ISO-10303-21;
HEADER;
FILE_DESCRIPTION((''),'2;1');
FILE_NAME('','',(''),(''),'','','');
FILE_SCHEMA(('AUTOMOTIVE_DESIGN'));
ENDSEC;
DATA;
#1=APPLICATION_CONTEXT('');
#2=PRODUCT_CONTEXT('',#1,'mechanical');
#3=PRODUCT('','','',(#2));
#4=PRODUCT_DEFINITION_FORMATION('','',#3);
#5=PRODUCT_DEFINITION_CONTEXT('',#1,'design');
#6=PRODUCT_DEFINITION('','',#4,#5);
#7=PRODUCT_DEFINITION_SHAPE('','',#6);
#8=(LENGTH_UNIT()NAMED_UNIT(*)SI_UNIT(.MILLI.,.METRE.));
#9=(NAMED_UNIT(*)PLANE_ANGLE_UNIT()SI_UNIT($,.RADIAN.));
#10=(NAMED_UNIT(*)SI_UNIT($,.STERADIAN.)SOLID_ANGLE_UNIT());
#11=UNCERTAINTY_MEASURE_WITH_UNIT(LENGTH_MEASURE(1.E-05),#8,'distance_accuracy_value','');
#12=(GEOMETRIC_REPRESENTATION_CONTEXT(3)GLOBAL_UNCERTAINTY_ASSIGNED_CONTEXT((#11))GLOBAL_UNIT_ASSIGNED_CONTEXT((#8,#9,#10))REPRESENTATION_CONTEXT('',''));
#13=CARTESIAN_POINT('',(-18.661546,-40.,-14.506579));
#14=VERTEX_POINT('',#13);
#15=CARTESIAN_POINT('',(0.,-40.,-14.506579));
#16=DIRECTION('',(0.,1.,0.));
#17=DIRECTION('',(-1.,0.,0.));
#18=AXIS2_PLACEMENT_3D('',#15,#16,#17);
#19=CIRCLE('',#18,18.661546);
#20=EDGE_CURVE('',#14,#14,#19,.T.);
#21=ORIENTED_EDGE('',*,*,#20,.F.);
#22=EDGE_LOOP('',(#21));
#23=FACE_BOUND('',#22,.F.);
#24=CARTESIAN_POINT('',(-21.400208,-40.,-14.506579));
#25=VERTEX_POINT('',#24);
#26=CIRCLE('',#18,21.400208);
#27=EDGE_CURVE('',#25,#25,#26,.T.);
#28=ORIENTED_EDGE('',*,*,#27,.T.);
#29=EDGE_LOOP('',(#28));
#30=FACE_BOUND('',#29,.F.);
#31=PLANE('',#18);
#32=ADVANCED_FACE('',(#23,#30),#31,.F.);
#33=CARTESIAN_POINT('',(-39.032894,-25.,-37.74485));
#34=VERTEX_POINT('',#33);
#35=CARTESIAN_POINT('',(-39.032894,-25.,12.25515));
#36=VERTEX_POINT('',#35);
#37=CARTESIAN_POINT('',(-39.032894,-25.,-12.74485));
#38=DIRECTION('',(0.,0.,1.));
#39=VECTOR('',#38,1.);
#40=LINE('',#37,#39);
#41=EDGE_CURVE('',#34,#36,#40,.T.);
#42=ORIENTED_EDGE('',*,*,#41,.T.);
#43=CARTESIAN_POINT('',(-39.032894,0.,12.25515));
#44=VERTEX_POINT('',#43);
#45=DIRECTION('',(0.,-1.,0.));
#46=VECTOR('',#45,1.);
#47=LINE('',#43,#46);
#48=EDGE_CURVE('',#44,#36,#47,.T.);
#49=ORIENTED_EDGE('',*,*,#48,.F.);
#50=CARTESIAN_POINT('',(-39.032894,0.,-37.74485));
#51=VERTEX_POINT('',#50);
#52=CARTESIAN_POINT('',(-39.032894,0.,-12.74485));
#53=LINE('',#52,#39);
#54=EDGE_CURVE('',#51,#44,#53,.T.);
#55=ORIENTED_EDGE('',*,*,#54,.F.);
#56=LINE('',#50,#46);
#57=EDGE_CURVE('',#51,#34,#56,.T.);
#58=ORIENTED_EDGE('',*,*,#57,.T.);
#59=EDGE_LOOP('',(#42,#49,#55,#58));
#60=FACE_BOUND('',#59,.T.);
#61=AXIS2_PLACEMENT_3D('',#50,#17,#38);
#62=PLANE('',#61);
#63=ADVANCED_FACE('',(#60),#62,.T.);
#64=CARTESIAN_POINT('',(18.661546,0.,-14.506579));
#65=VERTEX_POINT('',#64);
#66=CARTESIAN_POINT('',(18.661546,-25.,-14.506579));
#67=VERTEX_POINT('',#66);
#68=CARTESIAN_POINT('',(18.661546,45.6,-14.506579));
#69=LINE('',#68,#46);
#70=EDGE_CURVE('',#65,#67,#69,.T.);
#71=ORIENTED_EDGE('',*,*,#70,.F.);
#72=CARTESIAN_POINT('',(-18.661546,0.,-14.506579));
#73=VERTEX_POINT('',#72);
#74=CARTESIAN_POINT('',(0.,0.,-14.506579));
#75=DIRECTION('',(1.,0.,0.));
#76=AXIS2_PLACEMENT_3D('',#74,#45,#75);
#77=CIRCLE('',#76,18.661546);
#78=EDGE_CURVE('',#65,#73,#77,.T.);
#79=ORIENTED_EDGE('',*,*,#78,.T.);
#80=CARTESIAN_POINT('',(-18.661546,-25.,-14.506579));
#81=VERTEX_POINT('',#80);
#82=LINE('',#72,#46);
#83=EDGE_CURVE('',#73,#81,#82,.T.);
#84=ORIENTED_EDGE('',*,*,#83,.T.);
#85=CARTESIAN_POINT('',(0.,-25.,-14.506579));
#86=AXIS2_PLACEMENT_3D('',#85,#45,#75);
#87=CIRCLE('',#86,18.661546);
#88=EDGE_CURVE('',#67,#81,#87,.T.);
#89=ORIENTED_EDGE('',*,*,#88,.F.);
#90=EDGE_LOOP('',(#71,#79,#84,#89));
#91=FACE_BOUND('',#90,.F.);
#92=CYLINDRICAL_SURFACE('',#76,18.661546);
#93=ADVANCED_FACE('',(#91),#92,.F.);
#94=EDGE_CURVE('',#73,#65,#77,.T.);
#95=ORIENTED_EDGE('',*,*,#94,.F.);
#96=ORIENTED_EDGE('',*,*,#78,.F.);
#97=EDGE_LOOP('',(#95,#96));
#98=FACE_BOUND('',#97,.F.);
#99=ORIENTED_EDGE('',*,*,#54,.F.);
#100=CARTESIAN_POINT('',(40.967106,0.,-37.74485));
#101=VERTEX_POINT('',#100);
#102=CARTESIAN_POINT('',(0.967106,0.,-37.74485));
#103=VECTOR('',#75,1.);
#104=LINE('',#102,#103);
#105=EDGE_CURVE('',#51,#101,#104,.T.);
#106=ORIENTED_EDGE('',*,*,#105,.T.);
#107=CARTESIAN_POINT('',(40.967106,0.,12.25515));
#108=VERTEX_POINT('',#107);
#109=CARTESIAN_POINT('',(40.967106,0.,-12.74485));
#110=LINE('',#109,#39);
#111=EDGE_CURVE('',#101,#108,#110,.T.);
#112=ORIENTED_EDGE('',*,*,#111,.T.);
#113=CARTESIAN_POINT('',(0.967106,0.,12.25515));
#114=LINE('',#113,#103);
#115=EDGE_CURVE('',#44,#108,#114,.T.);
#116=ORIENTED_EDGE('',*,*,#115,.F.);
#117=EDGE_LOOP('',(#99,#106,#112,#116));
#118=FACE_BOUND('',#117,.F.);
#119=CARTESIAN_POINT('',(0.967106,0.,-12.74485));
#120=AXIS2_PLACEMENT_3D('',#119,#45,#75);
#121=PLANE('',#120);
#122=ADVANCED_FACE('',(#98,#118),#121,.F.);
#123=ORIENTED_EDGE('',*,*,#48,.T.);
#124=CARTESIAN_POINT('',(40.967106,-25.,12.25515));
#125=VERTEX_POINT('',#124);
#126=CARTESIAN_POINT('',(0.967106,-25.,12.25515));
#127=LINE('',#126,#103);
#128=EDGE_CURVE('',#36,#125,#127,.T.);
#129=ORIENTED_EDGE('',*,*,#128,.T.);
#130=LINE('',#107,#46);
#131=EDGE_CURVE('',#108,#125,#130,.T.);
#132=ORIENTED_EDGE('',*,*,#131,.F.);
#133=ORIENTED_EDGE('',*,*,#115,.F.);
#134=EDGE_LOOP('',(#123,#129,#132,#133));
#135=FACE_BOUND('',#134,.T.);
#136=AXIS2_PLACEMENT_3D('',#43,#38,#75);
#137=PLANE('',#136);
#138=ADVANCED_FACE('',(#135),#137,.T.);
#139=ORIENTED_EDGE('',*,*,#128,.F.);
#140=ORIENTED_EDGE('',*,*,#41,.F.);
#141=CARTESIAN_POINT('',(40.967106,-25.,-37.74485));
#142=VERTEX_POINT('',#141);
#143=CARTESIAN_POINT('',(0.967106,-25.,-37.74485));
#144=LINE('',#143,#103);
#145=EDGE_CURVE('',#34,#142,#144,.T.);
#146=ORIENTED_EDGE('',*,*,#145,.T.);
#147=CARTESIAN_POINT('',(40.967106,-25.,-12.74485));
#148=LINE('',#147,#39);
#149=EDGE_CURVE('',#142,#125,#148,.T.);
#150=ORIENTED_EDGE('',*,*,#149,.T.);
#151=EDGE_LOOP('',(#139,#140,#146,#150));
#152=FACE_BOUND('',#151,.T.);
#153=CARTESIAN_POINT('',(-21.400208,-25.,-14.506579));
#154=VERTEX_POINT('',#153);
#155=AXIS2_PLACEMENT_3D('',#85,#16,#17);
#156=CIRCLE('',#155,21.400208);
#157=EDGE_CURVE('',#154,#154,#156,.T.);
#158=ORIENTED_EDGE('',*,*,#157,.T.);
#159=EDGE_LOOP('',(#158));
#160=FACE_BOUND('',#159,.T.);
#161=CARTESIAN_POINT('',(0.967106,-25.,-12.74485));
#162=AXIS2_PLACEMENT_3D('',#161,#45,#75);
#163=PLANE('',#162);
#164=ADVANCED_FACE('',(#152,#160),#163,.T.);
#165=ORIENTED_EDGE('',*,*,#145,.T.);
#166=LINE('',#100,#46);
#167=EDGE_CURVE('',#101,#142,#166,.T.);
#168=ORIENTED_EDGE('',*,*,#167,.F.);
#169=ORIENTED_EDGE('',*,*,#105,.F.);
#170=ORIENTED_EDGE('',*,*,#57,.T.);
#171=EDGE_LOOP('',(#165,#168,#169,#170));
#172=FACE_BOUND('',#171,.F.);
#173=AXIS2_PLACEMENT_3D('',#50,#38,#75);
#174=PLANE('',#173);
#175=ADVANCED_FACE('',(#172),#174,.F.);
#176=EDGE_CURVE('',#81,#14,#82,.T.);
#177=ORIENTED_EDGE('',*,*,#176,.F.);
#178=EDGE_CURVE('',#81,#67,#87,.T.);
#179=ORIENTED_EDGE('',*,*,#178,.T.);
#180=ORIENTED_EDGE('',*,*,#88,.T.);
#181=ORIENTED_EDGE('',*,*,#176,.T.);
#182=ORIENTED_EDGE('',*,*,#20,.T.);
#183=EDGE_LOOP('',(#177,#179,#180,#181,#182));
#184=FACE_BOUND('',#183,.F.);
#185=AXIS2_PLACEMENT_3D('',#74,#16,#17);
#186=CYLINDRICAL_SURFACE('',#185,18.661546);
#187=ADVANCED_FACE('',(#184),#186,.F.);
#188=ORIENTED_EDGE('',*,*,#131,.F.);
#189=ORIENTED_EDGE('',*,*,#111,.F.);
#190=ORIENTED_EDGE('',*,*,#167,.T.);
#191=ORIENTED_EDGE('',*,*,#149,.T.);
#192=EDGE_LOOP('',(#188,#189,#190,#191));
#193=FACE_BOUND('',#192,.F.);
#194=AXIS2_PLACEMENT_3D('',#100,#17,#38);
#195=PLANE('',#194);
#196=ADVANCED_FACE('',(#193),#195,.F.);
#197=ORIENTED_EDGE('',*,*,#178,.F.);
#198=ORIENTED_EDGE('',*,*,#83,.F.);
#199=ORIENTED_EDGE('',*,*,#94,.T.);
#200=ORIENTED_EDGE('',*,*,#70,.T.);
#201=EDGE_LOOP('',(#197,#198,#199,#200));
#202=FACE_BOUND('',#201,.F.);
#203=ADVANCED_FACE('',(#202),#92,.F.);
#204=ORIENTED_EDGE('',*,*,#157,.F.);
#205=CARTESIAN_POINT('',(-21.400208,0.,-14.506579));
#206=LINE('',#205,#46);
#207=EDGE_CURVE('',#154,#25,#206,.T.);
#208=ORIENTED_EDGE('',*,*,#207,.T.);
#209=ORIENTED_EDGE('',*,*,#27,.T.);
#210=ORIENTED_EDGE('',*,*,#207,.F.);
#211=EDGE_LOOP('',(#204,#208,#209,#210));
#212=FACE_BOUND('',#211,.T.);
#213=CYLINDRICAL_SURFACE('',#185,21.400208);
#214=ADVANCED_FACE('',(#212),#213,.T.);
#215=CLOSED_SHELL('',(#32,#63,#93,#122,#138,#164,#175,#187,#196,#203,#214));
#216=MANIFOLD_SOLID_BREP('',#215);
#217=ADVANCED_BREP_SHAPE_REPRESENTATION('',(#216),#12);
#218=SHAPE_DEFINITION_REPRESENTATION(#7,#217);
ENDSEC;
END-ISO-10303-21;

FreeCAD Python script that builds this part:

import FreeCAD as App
import Part
import Sketcher
from FreeCAD import Vector

doc = App.newDocument("Part")
body = doc.addObject("PartDesign::Body", "Body")

sketch1 = body.newObject("Sketcher::SketchObject", "Sketch")
sketch1.AttachmentSupport = (doc.getObject("XZ_Plane"), [""])
sketch1.MapMode = "FlatFace"
sketch1.addGeometry([
    Part.LineSegment(Vector(-39, 12, 0), Vector(-39, -38, 0)),
    Part.LineSegment(Vector(-39, -38, 0), Vector(41, -38, 0)),
    Part.LineSegment(Vector(41, -38, 0), Vector(41, 12, 0)),
    Part.LineSegment(Vector(41, 12, 0), Vector(-39, 12, 0)),
], False)
sketch1.addConstraint([
    Sketcher.Constraint("Coincident", 0, 2, 1, 1),
    Sketcher.Constraint("Coincident", 1, 2, 2, 1),
    Sketcher.Constraint("Coincident", 2, 2, 3, 1),
    Sketcher.Constraint("Coincident", 3, 2, 0, 1),
    Sketcher.Constraint("Vertical", 0),
    Sketcher.Constraint("Horizontal", 1),
    Sketcher.Constraint("Vertical", 2),
    Sketcher.Constraint("Horizontal", 3),
    Sketcher.Constraint("DistanceX", 1, 1, 1, 2, 80.0),
    Sketcher.Constraint("DistanceY", 0, 2, 0, 1, 50.0),
    Sketcher.Constraint("DistanceY", 0, 2, -1, 1, 37.74485),
    Sketcher.Constraint("DistanceX", 0, 2, -1, 1, 39.032894),
])
pad1 = body.newObject("PartDesign::Pad", "Pad")
pad1.Profile = sketch1
pad1.Length = 25

sketch2 = body.newObject("Sketcher::SketchObject", "Sketch001")
sketch2.AttachmentSupport = (doc.getObject("XZ_Plane"), [""])
sketch2.MapMode = "FlatFace"
sketch2.addGeometry(Part.Circle(Vector(0, -15, 0), Vector(0, 0, 1), 19), False)
sketch2.addConstraint([
    Sketcher.Constraint("PointOnObject", 0, 3, -2),
    Sketcher.Constraint("Diameter", 0, 37.323093),
    Sketcher.Constraint("DistanceY", 0, 3, -1, 1, 14.506579),
])
pocket1 = body.newObject("PartDesign::Pocket", "Pocket")
pocket1.Profile = sketch2
pocket1.Length = 91.2
pocket1.Midplane = True

sketch3 = body.newObject("Sketcher::SketchObject", "Sketch002")
sketch3.AttachmentSupport = (doc.getObject("XZ_Plane"), [""])
sketch3.MapMode = "FlatFace"
sketch3.addGeometry([
    Part.Circle(Vector(0, -15, 0), Vector(0, 0, 1), 21),
    Part.Circle(Vector(0, -15, 0), Vector(0, 0, 1), 19),
], False)
sketch3.addConstraint([
    Sketcher.Constraint("Coincident", 1, 3, 0, 3),
    Sketcher.Constraint("PointOnObject", 0, 3, -2),
    Sketcher.Constraint("Diameter", 0, 42.800415),
    Sketcher.Constraint("Diameter", 1, 37.323093),
    Sketcher.Constraint("DistanceY", 0, 3, -1, 1, 14.506579),
])
pad2 = body.newObject("PartDesign::Pad", "Pad001")
pad2.Profile = sketch3
pad2.Length = 40

doc.recompute()
